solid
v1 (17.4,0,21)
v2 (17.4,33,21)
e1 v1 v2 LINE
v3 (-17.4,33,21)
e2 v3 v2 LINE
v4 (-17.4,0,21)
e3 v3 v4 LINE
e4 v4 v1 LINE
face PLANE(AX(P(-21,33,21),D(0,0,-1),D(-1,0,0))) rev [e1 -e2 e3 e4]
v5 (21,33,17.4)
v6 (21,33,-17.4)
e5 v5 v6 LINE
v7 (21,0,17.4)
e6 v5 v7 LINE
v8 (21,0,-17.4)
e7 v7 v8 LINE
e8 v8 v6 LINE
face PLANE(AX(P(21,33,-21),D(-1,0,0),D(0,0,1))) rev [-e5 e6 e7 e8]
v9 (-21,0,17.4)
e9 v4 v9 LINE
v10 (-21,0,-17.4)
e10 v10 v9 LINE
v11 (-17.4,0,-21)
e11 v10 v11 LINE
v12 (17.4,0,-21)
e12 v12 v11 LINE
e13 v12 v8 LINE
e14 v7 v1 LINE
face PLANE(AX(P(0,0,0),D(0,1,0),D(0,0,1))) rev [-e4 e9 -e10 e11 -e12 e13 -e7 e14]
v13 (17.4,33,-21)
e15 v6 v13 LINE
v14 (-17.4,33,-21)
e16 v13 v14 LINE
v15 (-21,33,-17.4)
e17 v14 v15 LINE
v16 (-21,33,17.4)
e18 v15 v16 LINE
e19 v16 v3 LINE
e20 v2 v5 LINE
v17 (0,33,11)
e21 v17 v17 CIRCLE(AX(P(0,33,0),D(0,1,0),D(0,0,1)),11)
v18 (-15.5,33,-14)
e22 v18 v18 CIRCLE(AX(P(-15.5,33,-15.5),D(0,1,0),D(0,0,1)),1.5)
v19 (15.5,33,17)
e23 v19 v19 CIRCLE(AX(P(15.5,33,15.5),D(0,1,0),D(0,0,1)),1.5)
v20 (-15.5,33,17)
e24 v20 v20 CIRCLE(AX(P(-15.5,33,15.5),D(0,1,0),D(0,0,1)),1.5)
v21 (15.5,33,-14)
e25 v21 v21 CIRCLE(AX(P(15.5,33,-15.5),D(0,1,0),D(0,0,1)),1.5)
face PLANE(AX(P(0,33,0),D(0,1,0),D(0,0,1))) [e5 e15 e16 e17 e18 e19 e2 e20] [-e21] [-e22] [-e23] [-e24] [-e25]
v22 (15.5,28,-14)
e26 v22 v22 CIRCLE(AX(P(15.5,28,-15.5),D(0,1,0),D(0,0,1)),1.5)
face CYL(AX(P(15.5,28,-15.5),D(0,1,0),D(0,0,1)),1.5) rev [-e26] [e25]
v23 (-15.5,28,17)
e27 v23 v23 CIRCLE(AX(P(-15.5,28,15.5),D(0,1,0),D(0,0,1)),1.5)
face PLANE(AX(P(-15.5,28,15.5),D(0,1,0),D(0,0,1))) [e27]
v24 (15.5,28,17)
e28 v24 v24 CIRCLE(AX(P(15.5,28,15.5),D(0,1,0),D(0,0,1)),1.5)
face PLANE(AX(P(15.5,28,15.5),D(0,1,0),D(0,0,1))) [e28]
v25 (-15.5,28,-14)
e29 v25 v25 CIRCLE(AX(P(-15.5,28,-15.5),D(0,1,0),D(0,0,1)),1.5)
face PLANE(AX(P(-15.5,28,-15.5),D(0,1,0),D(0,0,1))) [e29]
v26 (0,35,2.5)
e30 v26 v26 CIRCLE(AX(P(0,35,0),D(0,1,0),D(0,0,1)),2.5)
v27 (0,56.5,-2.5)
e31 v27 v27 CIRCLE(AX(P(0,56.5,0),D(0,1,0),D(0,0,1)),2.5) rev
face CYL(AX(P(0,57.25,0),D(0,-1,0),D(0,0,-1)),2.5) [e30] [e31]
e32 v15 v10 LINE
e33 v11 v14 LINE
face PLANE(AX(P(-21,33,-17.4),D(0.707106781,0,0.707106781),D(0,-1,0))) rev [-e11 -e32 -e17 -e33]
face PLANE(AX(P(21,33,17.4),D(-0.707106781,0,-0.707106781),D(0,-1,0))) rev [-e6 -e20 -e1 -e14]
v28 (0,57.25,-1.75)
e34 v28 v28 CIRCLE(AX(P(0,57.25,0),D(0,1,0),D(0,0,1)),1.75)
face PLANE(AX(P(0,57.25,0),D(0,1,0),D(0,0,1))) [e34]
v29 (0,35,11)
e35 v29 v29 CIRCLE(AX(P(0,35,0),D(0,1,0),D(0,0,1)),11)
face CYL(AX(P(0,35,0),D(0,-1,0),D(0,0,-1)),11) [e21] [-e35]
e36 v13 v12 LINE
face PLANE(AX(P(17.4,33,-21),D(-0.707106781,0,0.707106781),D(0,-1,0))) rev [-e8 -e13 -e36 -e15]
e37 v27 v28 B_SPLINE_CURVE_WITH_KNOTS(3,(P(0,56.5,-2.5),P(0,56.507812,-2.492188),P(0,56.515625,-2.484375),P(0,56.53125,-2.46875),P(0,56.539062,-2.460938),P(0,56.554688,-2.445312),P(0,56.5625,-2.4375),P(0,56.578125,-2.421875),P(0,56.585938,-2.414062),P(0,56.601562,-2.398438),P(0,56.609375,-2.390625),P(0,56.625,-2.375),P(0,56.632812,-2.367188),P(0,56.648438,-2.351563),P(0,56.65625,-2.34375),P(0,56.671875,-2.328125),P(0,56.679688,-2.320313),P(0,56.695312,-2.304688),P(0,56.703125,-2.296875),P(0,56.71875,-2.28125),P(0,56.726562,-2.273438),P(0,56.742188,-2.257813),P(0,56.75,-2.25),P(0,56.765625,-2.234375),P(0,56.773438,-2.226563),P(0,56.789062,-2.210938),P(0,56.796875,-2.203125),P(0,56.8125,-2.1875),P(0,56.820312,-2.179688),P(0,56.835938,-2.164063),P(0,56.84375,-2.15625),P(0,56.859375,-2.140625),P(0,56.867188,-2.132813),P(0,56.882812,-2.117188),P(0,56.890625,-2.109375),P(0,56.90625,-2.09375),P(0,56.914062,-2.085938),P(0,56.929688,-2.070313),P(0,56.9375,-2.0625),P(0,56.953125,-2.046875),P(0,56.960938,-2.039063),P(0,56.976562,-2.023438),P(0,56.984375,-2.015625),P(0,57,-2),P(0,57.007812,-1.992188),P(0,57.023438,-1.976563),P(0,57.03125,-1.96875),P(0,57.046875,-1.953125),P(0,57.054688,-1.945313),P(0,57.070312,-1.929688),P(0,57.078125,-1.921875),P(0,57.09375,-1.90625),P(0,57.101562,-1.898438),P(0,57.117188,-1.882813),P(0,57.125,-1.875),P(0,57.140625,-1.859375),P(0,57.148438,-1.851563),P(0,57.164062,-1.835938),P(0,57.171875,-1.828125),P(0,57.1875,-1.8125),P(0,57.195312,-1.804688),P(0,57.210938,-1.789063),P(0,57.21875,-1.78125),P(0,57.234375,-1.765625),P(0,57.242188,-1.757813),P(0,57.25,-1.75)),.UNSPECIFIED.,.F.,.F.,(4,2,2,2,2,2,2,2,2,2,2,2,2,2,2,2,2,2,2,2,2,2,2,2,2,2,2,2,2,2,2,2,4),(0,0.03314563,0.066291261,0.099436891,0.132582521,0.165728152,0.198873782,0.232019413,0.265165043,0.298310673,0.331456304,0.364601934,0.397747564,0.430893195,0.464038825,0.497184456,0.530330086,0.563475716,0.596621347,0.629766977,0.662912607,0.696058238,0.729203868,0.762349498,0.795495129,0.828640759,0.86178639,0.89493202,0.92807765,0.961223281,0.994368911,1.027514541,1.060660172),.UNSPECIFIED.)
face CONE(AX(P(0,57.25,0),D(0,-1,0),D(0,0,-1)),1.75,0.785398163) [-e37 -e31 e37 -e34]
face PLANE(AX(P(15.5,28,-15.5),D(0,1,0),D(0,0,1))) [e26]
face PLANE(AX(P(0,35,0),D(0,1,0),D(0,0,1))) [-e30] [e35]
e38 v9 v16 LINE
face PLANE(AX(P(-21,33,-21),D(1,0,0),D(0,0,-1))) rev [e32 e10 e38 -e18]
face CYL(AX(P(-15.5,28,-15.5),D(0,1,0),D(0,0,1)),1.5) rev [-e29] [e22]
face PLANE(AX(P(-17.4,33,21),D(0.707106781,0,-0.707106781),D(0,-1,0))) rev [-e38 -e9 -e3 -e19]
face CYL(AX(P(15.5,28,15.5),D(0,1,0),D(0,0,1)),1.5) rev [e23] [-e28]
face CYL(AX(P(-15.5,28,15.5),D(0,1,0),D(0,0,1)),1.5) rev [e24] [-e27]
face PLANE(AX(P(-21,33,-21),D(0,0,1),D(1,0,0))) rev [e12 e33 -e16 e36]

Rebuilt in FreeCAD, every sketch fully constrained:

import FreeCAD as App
import Part
import Sketcher


def edges_at(feature, points):
    """Names of the edges that pass closest to the given points."""
    edges = feature.Shape.Edges
    near = lambda p: min(range(len(edges)), key=lambda i: edges[i].distToShape(Part.Vertex(*p))[0])
    return sorted({f"Edge{near(p) + 1}" for p in points})

doc = App.newDocument("Part")
body = doc.addObject("PartDesign::Body", "Body")

# Sketch on XZ plane
sketch1 = body.newObject("Sketcher::SketchObject", "Sketch")
sketch1.AttachmentSupport = (doc.getObject("XZ_Plane"), [""])
sketch1.MapMode = "FlatFace"
sketch1.addGeometry([
    Part.LineSegment(App.Vector(-21, -21, 0), App.Vector(-21, 21, 0)),
    Part.LineSegment(App.Vector(-21, 21, 0), App.Vector(21, 21, 0)),
    Part.LineSegment(App.Vector(21, 21, 0), App.Vector(21, -21, 0)),
    Part.LineSegment(App.Vector(21, -21, 0), App.Vector(-21, -21, 0)),
], False)
sketch1.addConstraint([
    Sketcher.Constraint("Coincident", 0, 2, 1, 1),
    Sketcher.Constraint("Coincident", 1, 2, 2, 1),
    Sketcher.Constraint("Coincident", 2, 2, 3, 1),
    Sketcher.Constraint("Coincident", 3, 2, 0, 1),
    Sketcher.Constraint("Vertical", 0),
    Sketcher.Constraint("Horizontal", 1),
    Sketcher.Constraint("Vertical", 2),
    Sketcher.Constraint("Horizontal", 3),
    Sketcher.Constraint("Symmetric", 0, 2, 2, 2, -1, 1),
    Sketcher.Constraint("Equal", 3, 0),
    Sketcher.Constraint("DistanceX", 1, 1, 1, 2, 42.0),
])
pad1 = body.newObject("PartDesign::Pad", "Pad")
pad1.Profile = sketch1
pad1.Length = 33
pad1.Reversed = True

# Sketch on XZ plane
sketch2 = body.newObject("Sketcher::SketchObject", "Sketch001")
sketch2.AttachmentSupport = (doc.getObject("XZ_Plane"), [""])
sketch2.MapMode = "FlatFace"
sketch2.AttachmentOffset = App.Placement(App.Vector(0, 0, -33), App.Rotation())
sketch2.addGeometry(Part.Circle(App.Vector(0, 0, 0), App.Vector(0, 0, 1), 11), False)
sketch2.addConstraint([
    Sketcher.Constraint("Coincident", 0, 3, -1, 1),
    Sketcher.Constraint("Diameter", 0, 22.0),
])
pad2 = body.newObject("PartDesign::Pad", "Pad001")
pad2.Profile = sketch2
pad2.Length = 2
pad2.Reversed = True

# Sketch on XZ plane
sketch3 = body.newObject("Sketcher::SketchObject", "Sketch002")
sketch3.AttachmentSupport = (doc.getObject("XZ_Plane"), [""])
sketch3.MapMode = "FlatFace"
sketch3.AttachmentOffset = App.Placement(App.Vector(0, 0, -35), App.Rotation())
sketch3.addGeometry(Part.Circle(App.Vector(0, 0, 0), App.Vector(0, 0, 1), 2.5), False)
sketch3.addConstraint([
    Sketcher.Constraint("Coincident", 0, 3, -1, 1),
    Sketcher.Constraint("Diameter", 0, 5.0),
])
pad3 = body.newObject("PartDesign::Pad", "Pad002")
pad3.Profile = sketch3
pad3.Length = 22.25
pad3.Reversed = True
doc.recompute()

chamfer = body.newObject("PartDesign::Chamfer", "Chamfer")
chamfer.Base = (pad3, edges_at(pad3, [
    (21, 16.5, 21),
    (-21, 16.5, 21),
    (-21, 16.5, -21),
    (21, 16.5, -21),
]))
chamfer.Size = 3.6

# Sketch on XZ plane
sketch4 = body.newObject("Sketcher::SketchObject", "Sketch003")
sketch4.AttachmentSupport = (doc.getObject("XZ_Plane"), [""])
sketch4.MapMode = "FlatFace"
sketch4.AttachmentOffset = App.Placement(App.Vector(0, 0, -33), App.Rotation())
sketch4.addGeometry([
    Part.Circle(App.Vector(15.5, -15.5, 0), App.Vector(0, 0, 1), 1.5),
    Part.Circle(App.Vector(15.5, 15.5, 0), App.Vector(0, 0, 1), 1.5),
    Part.Circle(App.Vector(-15.5, 15.5, 0), App.Vector(0, 0, 1), 1.5),
    Part.Circle(App.Vector(-15.5, -15.5, 0), App.Vector(0, 0, 1), 1.5),
], False)
sketch4.addConstraint([
    Sketcher.Constraint("Equal", 0, 1),
    Sketcher.Constraint("Equal", 1, 2),
    Sketcher.Constraint("Equal", 2, 3),
    Sketcher.Constraint("Symmetric", 0, 3, 2, 3, -1, 1),
    Sketcher.Constraint("Symmetric", 1, 3, 3, 3, -1, 1),
    Sketcher.Constraint("Symmetric", 1, 3, 2, 3, -2),
    Sketcher.Constraint("Diameter", 0, 3.0),
    Sketcher.Constraint("DistanceY", 0, 3, 1, 3, 31.0),
    Sketcher.Constraint("DistanceX", 2, 3, 1, 3, 31.0),
])
pocket1 = body.newObject("PartDesign::Pocket", "Pocket")
pocket1.Profile = sketch4
pocket1.Length = 5
pocket1.Reversed = True
doc.recompute()

chamfer2 = body.newObject("PartDesign::Chamfer", "Chamfer001")
chamfer2.Base = (pocket1, edges_at(pocket1, [(0, 57.25, -2.5)]))
chamfer2.Size = 0.75

doc.recompute()
